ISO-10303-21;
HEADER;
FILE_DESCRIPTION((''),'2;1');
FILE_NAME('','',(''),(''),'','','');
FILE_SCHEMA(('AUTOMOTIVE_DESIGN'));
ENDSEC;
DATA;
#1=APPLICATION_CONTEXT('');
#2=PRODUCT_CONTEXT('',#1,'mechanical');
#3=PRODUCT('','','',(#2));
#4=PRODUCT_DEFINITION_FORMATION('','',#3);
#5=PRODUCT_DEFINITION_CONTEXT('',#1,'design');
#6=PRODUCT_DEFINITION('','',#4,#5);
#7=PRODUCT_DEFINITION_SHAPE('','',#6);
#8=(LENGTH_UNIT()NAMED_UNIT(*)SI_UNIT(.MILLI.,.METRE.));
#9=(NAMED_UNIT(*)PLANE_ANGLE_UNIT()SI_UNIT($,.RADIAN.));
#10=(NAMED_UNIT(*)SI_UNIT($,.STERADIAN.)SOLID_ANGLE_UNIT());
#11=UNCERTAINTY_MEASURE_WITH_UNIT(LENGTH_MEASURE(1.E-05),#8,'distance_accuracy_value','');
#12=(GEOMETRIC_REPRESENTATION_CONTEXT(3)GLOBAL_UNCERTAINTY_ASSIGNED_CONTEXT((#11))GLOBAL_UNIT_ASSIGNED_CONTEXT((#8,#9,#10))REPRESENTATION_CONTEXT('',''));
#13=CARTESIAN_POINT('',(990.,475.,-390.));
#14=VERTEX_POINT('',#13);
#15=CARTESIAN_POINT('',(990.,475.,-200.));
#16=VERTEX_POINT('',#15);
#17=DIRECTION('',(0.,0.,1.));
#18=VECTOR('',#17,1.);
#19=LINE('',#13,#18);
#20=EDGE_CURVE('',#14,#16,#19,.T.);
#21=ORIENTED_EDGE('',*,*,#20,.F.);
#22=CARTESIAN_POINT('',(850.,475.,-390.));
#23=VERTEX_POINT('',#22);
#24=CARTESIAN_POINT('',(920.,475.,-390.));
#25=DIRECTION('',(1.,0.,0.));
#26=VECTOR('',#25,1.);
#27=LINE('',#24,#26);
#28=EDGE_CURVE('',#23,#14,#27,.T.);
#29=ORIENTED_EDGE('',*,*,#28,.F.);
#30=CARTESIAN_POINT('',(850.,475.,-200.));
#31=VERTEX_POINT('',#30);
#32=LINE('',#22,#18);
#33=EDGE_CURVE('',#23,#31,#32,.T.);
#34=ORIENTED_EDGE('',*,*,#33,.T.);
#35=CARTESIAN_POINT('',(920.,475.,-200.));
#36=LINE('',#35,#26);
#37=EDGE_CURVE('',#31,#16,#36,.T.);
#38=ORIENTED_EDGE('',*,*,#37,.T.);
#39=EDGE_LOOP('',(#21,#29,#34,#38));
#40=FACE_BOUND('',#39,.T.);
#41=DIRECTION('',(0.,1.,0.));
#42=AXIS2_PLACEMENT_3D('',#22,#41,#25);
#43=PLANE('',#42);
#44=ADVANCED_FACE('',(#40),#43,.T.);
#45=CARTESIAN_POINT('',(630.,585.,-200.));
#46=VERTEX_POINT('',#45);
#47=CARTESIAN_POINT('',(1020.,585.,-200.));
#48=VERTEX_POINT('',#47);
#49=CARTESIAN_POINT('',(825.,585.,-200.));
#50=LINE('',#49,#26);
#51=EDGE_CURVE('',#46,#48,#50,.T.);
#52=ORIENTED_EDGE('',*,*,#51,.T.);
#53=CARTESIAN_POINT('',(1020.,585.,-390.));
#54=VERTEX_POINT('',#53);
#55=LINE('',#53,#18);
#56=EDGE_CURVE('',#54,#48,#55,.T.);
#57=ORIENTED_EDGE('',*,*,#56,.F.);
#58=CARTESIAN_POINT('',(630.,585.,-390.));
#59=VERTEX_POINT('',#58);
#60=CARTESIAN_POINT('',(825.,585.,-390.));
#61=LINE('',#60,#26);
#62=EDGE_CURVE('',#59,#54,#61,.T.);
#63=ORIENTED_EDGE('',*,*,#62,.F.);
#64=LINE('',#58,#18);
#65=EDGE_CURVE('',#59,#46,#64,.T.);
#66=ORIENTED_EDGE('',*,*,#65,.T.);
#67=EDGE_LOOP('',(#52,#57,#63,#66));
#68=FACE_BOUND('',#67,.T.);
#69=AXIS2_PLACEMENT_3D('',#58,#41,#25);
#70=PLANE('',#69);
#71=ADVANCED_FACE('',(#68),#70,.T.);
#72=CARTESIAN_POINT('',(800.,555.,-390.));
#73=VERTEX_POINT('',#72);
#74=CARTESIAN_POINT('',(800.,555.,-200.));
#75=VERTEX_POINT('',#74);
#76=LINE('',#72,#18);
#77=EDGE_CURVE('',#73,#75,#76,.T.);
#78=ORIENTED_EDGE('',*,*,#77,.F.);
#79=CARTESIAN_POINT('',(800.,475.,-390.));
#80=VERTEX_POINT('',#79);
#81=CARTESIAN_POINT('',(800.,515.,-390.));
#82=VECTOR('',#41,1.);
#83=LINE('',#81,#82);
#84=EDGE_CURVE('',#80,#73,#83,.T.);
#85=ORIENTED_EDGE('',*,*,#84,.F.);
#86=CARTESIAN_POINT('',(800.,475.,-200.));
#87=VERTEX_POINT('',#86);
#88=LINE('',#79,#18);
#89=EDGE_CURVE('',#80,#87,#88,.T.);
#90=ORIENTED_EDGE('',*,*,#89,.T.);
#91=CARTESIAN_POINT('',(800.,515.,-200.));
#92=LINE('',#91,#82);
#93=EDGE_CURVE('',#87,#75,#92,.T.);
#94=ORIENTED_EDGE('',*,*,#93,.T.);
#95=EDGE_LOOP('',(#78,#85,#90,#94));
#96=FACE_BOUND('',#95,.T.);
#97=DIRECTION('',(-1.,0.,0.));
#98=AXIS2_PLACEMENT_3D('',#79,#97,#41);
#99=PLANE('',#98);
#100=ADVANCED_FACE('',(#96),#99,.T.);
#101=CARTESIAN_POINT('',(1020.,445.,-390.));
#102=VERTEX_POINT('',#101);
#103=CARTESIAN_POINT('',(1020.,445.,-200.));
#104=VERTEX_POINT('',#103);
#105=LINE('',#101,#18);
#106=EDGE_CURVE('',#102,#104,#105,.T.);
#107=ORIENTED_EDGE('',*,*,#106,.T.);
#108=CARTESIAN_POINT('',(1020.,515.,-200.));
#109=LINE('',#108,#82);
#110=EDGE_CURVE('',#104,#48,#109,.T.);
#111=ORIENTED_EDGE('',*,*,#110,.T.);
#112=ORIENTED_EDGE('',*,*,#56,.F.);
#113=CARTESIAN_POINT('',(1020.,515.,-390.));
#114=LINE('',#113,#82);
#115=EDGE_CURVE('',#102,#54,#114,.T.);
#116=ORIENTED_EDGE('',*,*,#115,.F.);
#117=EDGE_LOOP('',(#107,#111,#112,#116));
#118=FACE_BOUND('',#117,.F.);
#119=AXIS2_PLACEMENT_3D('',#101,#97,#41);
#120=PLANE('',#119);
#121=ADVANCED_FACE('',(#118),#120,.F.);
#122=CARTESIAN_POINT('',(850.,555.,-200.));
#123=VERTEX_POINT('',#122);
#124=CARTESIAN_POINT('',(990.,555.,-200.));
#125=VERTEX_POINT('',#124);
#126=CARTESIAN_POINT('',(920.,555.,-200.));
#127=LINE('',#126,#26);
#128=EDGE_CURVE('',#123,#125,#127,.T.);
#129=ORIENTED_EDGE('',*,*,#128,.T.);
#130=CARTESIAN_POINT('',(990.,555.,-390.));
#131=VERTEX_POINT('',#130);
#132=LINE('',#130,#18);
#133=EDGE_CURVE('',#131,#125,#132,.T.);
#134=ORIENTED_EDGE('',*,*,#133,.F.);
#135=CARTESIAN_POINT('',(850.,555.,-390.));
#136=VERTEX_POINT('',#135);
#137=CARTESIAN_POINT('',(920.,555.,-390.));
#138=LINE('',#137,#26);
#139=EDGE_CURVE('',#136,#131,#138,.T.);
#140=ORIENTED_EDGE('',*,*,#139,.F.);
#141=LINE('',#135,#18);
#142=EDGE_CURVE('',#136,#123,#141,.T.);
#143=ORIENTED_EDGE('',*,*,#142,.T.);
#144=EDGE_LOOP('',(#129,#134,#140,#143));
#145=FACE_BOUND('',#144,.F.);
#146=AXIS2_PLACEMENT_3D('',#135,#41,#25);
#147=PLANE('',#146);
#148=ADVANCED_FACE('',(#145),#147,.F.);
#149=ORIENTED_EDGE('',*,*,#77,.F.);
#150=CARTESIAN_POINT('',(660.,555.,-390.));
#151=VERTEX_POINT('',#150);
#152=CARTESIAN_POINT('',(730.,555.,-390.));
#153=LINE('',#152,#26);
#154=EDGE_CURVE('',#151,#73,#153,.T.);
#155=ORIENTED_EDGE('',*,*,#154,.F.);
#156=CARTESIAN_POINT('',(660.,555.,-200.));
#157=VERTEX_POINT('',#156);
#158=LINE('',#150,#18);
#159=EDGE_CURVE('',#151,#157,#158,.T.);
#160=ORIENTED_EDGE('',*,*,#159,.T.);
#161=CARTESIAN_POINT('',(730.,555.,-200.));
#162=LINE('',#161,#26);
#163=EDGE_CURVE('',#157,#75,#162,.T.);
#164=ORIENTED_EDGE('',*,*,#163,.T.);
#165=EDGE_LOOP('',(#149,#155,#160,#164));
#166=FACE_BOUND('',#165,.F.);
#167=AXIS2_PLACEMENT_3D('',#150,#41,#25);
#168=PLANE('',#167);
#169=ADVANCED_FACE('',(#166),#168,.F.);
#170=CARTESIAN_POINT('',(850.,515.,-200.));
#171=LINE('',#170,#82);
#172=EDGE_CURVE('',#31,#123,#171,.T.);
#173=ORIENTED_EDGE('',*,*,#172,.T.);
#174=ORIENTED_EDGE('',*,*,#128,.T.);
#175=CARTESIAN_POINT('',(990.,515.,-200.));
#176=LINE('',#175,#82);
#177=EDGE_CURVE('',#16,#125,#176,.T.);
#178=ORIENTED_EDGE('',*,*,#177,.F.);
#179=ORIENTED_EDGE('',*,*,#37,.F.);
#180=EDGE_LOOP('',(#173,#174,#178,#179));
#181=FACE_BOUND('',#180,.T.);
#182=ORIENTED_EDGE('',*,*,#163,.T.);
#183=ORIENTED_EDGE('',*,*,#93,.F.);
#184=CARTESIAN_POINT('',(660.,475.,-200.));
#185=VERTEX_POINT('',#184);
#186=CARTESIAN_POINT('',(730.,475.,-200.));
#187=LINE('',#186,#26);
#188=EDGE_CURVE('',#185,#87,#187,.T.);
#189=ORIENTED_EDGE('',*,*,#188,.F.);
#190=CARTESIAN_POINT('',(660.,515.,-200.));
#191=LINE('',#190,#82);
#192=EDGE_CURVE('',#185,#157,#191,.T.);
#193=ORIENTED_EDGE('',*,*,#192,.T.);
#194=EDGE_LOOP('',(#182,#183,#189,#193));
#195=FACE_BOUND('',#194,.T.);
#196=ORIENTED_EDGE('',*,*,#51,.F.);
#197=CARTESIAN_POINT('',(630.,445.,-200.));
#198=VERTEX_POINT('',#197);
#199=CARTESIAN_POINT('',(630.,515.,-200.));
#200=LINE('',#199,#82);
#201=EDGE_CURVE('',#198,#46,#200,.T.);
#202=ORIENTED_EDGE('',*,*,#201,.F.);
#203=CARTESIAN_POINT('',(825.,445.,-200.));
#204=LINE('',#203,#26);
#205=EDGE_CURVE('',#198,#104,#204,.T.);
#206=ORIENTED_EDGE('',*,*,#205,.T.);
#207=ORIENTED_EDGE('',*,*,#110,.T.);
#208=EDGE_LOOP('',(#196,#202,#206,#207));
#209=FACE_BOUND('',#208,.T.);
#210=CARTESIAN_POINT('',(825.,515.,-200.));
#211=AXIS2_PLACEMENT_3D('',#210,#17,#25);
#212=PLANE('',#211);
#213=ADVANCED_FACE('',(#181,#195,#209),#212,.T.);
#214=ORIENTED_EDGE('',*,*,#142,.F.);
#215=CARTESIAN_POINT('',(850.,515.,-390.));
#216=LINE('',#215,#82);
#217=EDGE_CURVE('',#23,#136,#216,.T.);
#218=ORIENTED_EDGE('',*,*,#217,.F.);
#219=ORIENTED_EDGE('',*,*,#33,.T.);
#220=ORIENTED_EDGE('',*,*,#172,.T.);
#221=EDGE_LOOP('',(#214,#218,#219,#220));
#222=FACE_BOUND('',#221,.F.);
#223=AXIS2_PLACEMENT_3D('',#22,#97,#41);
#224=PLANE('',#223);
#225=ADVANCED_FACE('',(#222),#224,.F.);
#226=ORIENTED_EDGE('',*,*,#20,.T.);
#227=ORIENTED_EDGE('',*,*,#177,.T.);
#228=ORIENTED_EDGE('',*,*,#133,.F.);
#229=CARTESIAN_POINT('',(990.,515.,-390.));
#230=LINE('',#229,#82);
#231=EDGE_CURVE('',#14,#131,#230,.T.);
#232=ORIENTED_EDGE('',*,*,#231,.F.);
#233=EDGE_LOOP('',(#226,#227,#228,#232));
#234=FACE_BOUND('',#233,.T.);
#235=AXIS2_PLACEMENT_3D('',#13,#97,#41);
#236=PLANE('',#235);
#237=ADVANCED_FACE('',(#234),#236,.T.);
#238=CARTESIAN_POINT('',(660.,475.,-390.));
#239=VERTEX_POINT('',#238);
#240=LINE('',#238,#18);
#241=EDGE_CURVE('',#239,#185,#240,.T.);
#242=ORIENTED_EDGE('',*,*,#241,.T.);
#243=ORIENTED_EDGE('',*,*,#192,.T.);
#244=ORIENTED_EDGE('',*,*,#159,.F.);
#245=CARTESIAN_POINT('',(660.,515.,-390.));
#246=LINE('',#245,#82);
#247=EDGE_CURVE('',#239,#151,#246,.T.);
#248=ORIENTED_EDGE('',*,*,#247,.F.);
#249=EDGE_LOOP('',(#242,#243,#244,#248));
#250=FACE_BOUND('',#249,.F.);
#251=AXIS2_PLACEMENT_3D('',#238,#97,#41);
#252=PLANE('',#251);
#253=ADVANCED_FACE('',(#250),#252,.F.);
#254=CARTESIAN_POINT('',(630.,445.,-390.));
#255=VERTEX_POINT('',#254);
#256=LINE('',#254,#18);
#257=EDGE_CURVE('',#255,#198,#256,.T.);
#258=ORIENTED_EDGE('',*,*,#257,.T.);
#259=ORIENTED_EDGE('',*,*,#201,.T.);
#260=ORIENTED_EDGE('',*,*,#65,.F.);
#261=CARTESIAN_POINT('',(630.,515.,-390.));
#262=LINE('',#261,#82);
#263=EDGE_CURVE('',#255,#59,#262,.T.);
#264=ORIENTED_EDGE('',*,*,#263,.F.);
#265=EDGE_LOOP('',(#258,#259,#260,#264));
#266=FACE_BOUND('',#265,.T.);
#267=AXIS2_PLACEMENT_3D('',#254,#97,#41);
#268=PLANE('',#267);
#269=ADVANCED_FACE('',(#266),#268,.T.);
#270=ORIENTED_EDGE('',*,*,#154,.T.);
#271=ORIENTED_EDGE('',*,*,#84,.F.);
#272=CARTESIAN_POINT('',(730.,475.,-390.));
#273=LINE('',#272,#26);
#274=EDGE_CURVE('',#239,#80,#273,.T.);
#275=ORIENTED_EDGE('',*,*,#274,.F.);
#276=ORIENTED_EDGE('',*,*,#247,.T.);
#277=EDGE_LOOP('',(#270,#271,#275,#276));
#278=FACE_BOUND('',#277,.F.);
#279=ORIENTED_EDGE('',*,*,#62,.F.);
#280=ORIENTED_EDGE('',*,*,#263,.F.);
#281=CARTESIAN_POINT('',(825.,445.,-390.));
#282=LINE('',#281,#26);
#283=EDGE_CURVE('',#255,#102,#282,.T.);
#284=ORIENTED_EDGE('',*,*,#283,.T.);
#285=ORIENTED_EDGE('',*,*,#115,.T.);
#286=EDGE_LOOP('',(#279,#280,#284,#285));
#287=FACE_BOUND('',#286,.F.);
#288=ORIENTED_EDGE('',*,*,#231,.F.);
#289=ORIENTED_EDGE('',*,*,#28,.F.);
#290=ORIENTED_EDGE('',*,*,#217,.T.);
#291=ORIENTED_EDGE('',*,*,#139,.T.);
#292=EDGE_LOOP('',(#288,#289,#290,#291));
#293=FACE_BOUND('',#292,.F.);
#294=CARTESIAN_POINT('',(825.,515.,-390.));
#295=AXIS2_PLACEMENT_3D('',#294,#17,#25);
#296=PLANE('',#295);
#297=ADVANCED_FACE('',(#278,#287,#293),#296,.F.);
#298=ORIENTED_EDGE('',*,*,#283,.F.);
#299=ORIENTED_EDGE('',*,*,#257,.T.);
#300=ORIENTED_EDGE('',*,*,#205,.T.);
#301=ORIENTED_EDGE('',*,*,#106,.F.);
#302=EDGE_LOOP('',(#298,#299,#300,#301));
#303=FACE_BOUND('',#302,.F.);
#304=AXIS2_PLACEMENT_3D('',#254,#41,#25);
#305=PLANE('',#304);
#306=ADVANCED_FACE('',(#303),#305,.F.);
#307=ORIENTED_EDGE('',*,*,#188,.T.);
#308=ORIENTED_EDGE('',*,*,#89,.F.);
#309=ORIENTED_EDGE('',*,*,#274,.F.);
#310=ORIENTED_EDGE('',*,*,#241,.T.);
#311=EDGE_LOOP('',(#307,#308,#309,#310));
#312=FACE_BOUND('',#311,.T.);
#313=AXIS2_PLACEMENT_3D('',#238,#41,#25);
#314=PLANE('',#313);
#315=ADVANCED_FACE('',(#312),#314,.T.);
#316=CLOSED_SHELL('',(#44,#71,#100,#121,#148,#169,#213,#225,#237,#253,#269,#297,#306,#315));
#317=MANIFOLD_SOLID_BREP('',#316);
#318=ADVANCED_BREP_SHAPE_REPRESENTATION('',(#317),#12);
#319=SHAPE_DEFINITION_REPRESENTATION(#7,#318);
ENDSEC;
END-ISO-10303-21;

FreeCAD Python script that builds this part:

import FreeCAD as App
import Part
import Sketcher

V = App.Vector

doc = App.newDocument("Part")
body = doc.addObject("PartDesign::Body", "Body")

# Sketch on XY plane
sketch1 = body.newObject("Sketcher::SketchObject", "Sketch")
sketch1.AttachmentSupport = (doc.getObject("XY_Plane"), [""])
sketch1.MapMode = "FlatFace"
sketch1.addGeometry(Part.LineSegment(V(220, 110, 0), V(220, 30, 0)), False)
sketch1.addGeometry(Part.LineSegment(V(220, 30, 0), V(360, 30, 0)), False)
sketch1.addGeometry(Part.LineSegment(V(360, 30, 0), V(360, 110, 0)), False)
sketch1.addGeometry(Part.LineSegment(V(360, 110, 0), V(220, 110, 0)), False)
sketch1.addConstraint(Sketcher.Constraint("Coincident", 0, 2, 1, 1))
sketch1.addConstraint(Sketcher.Constraint("Coincident", 1, 2, 2, 1))
sketch1.addConstraint(Sketcher.Constraint("Coincident", 2, 2, 3, 1))
sketch1.addConstraint(Sketcher.Constraint("Coincident", 3, 2, 0, 1))
sketch1.addConstraint(Sketcher.Constraint("Vertical", 0))
sketch1.addConstraint(Sketcher.Constraint("Horizontal", 1))
sketch1.addConstraint(Sketcher.Constraint("Vertical", 2))
sketch1.addConstraint(Sketcher.Constraint("Horizontal", 3))
sketch1.addConstraint(Sketcher.Constraint("DistanceX", 1, 1, 1, 2, 140.0))
sketch1.addConstraint(Sketcher.Constraint("DistanceY", 0, 2, 0, 1, 80.0))
sketch1.addConstraint(Sketcher.Constraint("DistanceX", -1, 1, 0, 2, 220.0))
sketch1.addConstraint(Sketcher.Constraint("DistanceY", -1, 1, 0, 2, 30.0))
pad1 = body.newObject("PartDesign::Pad", "Pad")
pad1.Profile = sketch1
pad1.Length = 190
body2 = doc.addObject("PartDesign::Body", "Body001")
body2.AllowCompound = True

# Sketch on XY plane
sketch2 = body2.newObject("Sketcher::SketchObject", "Sketch001")
sketch2.AttachmentSupport = (doc.getObject("XY_Plane001"), [""])
sketch2.MapMode = "FlatFace"
sketch2.addGeometry(Part.LineSegment(V(30, 110, 0), V(30, 30, 0)), False)
sketch2.addGeometry(Part.LineSegment(V(30, 30, 0), V(170, 30, 0)), False)
sketch2.addGeometry(Part.LineSegment(V(170, 30, 0), V(170, 110, 0)), False)
sketch2.addGeometry(Part.LineSegment(V(170, 110, 0), V(30, 110, 0)), False)
sketch2.addConstraint(Sketcher.Constraint("Coincident", 0, 2, 1, 1))
sketch2.addConstraint(Sketcher.Constraint("Coincident", 1, 2, 2, 1))
sketch2.addConstraint(Sketcher.Constraint("Coincident", 2, 2, 3, 1))
sketch2.addConstraint(Sketcher.Constraint("Coincident", 3, 2, 0, 1))
sketch2.addConstraint(Sketcher.Constraint("Vertical", 0))
sketch2.addConstraint(Sketcher.Constraint("Horizontal", 1))
sketch2.addConstraint(Sketcher.Constraint("Vertical", 2))
sketch2.addConstraint(Sketcher.Constraint("Horizontal", 3))
sketch2.addConstraint(Sketcher.Constraint("DistanceX", 1, 1, 1, 2, 140.0))
sketch2.addConstraint(Sketcher.Constraint("DistanceY", 0, 2, 0, 1, 80.0))
sketch2.addConstraint(Sketcher.Constraint("DistanceX", -1, 1, 0, 2, 30.0))
sketch2.addConstraint(Sketcher.Constraint("DistanceY", -1, 1, 0, 2, 30.0))
pad2 = body2.newObject("PartDesign::Pad", "Pad001")
pad2.Profile = sketch2
pad2.Length = 190
doc.recompute()

boolean = body2.newObject("PartDesign::Boolean", "Boolean")
boolean.Type = "Fuse"
boolean.addObjects([body])
body3 = doc.addObject("PartDesign::Body", "Body002")

# Sketch on XY plane
sketch3 = body3.newObject("Sketcher::SketchObject", "Sketch002")
sketch3.AttachmentSupport = (doc.getObject("XY_Plane002"), [""])
sketch3.MapMode = "FlatFace"
sketch3.addGeometry(Part.LineSegment(V(0, 140, 0), V(0, 0, 0)), False)
sketch3.addGeometry(Part.LineSegment(V(0, 0, 0), V(390, 0, 0)), False)
sketch3.addGeometry(Part.LineSegment(V(390, 0, 0), V(390, 140, 0)), False)
sketch3.addGeometry(Part.LineSegment(V(390, 140, 0), V(0, 140, 0)), False)
sketch3.addConstraint(Sketcher.Constraint("Coincident", 0, 2, 1, 1))
sketch3.addConstraint(Sketcher.Constraint("Coincident", 1, 2, 2, 1))
sketch3.addConstraint(Sketcher.Constraint("Coincident", 2, 2, 3, 1))
sketch3.addConstraint(Sketcher.Constraint("Coincident", 3, 2, 0, 1))
sketch3.addConstraint(Sketcher.Constraint("Vertical", 0))
sketch3.addConstraint(Sketcher.Constraint("Horizontal", 1))
sketch3.addConstraint(Sketcher.Constraint("Vertical", 2))
sketch3.addConstraint(Sketcher.Constraint("Horizontal", 3))
sketch3.addConstraint(Sketcher.Constraint("Coincident", 0, 2, -1, 1))
sketch3.addConstraint(Sketcher.Constraint("DistanceX", 1, 1, 1, 2, 390.0))
sketch3.addConstraint(Sketcher.Constraint("DistanceY", 0, 2, 0, 1, 140.0))
pad3 = body3.newObject("PartDesign::Pad", "Pad002")
pad3.Profile = sketch3
pad3.Length = 190
doc.recompute()

boolean2 = body3.newObject("PartDesign::Boolean", "Boolean001")
boolean2.Type = "Cut"
boolean2.addObjects([body2])
body4 = doc.addObject("PartDesign::Body", "Body003")
doc.recompute()

body3.Placement = App.Placement(V(630, 445, -390), App.Rotation(V(0, 0, 1), 0))
boolean3 = body4.newObject("PartDesign::Boolean", "Boolean002")
boolean3.Type = "Fuse"
boolean3.addObjects([body3])

doc.recompute()
